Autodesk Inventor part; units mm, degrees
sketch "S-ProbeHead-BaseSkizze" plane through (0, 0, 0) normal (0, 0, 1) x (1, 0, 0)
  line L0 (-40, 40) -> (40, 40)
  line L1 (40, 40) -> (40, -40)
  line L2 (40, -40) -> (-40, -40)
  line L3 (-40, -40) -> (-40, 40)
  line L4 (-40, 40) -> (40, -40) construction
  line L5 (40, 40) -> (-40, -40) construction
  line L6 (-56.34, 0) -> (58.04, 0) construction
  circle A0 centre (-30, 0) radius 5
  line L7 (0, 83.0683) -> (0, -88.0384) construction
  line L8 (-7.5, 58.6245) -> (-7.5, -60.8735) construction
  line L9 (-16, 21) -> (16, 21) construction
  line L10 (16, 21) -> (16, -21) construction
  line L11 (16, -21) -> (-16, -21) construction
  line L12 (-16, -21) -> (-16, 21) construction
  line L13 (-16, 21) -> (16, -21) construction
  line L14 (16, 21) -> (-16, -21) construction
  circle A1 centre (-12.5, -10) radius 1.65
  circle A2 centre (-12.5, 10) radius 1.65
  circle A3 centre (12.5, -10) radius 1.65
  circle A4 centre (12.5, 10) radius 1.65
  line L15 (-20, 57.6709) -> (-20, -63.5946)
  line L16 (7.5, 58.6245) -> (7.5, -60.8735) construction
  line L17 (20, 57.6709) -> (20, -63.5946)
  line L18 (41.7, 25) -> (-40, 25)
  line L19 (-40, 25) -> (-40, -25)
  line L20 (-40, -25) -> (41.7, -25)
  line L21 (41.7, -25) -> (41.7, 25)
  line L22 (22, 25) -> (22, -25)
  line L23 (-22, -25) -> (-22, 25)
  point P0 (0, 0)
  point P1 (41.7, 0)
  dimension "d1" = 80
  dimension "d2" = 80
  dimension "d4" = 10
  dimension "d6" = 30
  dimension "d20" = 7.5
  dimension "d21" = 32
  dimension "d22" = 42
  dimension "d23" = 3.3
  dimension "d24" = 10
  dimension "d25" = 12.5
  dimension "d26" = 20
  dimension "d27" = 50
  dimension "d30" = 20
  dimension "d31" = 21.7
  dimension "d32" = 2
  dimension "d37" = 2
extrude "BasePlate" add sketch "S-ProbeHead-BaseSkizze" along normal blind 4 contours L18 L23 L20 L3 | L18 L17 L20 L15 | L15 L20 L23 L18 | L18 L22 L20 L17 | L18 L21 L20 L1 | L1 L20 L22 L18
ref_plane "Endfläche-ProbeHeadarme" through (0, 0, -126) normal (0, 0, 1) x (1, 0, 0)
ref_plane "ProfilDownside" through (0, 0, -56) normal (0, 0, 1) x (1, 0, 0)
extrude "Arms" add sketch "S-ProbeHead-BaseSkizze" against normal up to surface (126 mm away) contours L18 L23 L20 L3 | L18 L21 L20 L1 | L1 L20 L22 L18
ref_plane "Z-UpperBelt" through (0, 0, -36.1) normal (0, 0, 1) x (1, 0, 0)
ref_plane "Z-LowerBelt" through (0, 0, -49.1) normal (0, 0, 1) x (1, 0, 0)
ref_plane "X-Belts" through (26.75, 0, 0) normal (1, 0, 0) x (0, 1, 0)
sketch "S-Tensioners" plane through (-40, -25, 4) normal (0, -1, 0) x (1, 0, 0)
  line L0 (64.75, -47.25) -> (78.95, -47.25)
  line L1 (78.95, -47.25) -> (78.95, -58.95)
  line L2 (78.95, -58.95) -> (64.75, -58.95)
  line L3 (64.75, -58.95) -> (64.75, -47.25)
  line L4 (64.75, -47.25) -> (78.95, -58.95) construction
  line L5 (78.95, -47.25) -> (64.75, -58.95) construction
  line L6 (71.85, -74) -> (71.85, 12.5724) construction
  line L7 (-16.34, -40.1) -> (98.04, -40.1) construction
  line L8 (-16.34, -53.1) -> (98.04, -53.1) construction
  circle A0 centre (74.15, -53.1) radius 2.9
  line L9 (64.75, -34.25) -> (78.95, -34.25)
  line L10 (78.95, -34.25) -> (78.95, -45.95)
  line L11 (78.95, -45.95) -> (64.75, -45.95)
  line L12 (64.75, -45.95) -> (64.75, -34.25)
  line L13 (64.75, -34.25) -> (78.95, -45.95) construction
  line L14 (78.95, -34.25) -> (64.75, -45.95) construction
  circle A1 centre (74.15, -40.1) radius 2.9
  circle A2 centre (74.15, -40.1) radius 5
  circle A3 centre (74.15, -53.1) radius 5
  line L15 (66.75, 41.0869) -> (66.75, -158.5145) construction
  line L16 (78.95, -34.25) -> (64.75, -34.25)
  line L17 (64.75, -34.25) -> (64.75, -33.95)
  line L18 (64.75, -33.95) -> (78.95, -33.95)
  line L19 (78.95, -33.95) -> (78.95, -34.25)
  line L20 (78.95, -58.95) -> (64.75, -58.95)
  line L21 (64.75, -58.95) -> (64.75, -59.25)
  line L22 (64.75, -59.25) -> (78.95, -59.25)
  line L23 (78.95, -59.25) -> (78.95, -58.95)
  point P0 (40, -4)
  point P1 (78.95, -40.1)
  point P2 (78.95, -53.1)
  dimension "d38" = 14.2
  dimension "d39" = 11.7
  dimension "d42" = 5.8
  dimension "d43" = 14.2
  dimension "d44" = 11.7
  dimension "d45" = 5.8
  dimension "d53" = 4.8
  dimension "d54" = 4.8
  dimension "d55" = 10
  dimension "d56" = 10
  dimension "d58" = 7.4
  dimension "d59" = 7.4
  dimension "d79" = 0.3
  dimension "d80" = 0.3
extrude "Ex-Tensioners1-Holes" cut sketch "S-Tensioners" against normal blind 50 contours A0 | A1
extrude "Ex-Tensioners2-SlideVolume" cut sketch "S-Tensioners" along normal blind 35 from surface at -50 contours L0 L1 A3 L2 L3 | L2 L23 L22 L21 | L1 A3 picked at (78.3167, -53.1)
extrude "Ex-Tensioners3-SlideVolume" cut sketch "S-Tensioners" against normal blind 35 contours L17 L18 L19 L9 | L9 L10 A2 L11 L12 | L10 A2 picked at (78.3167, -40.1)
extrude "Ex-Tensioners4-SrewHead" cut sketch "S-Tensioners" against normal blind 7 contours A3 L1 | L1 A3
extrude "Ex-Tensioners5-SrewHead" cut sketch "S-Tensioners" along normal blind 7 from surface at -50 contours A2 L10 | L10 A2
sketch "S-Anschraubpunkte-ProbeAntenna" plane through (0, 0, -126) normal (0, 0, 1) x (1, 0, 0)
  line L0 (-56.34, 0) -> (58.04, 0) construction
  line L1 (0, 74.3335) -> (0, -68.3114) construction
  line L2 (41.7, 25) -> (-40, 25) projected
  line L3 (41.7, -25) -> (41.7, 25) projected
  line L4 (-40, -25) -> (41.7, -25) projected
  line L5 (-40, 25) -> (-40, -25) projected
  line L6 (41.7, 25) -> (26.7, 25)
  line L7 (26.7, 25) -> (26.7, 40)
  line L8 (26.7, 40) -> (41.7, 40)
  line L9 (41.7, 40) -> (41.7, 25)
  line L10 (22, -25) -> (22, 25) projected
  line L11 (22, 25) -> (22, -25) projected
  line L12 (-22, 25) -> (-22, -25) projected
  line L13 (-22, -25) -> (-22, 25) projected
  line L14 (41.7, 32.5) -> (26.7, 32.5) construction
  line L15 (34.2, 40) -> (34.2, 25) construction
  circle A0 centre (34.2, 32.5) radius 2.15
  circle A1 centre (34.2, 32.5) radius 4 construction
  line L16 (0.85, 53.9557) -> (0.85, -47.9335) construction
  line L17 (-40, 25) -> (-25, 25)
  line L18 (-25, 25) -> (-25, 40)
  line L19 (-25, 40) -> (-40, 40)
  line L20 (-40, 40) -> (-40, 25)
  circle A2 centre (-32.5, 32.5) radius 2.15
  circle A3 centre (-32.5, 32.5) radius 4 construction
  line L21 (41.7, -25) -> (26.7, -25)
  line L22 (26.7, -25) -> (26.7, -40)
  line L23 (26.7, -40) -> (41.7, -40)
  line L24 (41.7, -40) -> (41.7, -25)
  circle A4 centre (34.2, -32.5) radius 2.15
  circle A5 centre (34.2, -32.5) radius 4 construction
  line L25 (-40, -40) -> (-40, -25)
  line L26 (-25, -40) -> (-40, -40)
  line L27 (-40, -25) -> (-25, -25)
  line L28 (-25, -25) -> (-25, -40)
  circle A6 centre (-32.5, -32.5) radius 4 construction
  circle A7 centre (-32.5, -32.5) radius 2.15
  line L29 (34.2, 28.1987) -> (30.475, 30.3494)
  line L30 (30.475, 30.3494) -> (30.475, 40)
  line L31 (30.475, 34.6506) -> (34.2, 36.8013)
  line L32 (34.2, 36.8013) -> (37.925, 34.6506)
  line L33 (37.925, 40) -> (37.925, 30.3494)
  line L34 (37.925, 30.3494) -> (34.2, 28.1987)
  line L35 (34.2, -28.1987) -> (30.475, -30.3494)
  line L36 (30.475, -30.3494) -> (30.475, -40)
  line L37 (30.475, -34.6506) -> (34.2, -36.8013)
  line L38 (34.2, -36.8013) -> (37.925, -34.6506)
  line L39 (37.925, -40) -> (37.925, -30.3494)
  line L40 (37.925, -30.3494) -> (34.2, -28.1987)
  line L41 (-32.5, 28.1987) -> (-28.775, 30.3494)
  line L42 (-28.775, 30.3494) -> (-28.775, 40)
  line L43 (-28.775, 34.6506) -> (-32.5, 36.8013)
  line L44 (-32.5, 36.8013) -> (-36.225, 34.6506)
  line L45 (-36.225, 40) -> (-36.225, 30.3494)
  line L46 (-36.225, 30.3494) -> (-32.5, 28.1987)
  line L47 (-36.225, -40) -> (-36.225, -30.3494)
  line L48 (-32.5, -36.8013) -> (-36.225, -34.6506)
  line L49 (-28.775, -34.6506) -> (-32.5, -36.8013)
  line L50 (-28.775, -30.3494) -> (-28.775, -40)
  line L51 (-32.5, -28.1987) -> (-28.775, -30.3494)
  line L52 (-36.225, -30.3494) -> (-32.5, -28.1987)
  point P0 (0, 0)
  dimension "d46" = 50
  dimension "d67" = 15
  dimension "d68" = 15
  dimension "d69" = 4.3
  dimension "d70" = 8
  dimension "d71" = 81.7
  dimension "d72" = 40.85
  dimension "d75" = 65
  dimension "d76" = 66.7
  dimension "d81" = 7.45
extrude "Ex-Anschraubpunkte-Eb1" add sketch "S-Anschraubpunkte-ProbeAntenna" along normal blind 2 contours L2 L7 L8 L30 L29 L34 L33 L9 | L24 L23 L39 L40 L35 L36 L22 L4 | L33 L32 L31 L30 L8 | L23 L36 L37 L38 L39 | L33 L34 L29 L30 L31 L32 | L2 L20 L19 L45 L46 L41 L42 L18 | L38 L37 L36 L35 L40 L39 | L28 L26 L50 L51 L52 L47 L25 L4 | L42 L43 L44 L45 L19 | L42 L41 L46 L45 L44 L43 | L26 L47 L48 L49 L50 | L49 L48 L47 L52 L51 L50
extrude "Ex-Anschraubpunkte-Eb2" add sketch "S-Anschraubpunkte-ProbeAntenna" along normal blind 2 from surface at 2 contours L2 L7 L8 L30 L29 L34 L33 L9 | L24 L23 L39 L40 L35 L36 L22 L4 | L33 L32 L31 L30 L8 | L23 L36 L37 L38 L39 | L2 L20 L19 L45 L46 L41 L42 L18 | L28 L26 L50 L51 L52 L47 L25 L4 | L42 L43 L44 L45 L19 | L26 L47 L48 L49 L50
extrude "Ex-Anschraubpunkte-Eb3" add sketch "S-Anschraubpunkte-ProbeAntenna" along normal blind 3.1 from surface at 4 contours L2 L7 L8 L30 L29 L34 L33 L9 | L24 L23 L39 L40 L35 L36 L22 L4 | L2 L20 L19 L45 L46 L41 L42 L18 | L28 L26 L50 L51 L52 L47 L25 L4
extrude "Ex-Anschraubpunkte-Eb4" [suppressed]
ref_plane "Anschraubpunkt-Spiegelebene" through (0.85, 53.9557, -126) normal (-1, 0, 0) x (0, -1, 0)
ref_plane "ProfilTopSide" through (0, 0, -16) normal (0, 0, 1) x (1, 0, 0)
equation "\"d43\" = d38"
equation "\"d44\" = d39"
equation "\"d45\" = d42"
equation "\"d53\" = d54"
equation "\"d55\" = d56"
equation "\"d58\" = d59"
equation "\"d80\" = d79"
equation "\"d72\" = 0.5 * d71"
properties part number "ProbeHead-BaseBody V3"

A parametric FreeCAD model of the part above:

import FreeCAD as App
import Part
import Sketcher

V = App.Vector
Q = App.Units.Quantity

doc = App.newDocument("Part")
body = doc.addObject("PartDesign::Body", "Body")

# Sketch on XY plane
sketch1 = body.newObject("Sketcher::SketchObject", "Sketch")
sketch1.AttachmentSupport = (doc.getObject("XY_Plane"), [""])
sketch1.MapMode = "FlatFace"
sketch1.addGeometry(Part.LineSegment(V(-40, 25, 0), V(-40, -25, 0)), False)
sketch1.addGeometry(Part.LineSegment(V(-40, -25, 0), V(41.7, -25, 0)), False)
sketch1.addGeometry(Part.LineSegment(V(41.7, -25, 0), V(41.7, 25, 0)), False)
sketch1.addGeometry(Part.LineSegment(V(41.7, 25, 0), V(-40, 25, 0)), False)
sketch1.addGeometry(Part.Circle(V(-30, 0, 0), V(0, 0, 1), 5), False)
sketch1.addGeometry(Part.Circle(V(12.5, 10, 0), V(0, 0, 1), 1.6), False)
sketch1.addGeometry(Part.Circle(V(-12.5, -10, 0), V(0, 0, 1), 1.6), False)
sketch1.addGeometry(Part.Circle(V(12.5, -10, 0), V(0, 0, 1), 1.6), False)
sketch1.addGeometry(Part.Circle(V(-12.5, 10, 0), V(0, 0, 1), 1.6), False)
sketch1.addConstraint(Sketcher.Constraint("Coincident", 0, 2, 1, 1))
sketch1.addConstraint(Sketcher.Constraint("Coincident", 1, 2, 2, 1))
sketch1.addConstraint(Sketcher.Constraint("Coincident", 2, 2, 3, 1))
sketch1.addConstraint(Sketcher.Constraint("Coincident", 3, 2, 0, 1))
sketch1.addConstraint(Sketcher.Constraint("Vertical", 0))
sketch1.addConstraint(Sketcher.Constraint("Horizontal", 1))
sketch1.addConstraint(Sketcher.Constraint("Vertical", 2))
sketch1.addConstraint(Sketcher.Constraint("Horizontal", 3))
sketch1.addConstraint(Sketcher.Constraint("Equal", 5, 6))
sketch1.addConstraint(Sketcher.Constraint("Equal", 6, 7))
sketch1.addConstraint(Sketcher.Constraint("Equal", 7, 8))
sketch1.addConstraint(Sketcher.Constraint("Symmetric", 5, 3, 6, 3, -1, 1))
sketch1.addConstraint(Sketcher.Constraint("Symmetric", 7, 3, 8, 3, -1, 1))
sketch1.addConstraint(Sketcher.Constraint("Symmetric", 6, 3, 7, 3, -2))
sketch1.addConstraint(Sketcher.Constraint("PointOnObject", 4, 3, -1))
sketch1.addConstraint(Sketcher.Constraint("Diameter", 4, Q("10 mm")))
sketch1.addConstraint(Sketcher.Constraint("Diameter", 5, Q("3.3 mm")))
sketch1.addConstraint(Sketcher.Constraint("DistanceY", 0, 2, 0, 1, Q("50 mm")))
sketch1.addConstraint(Sketcher.Constraint("DistanceX", 4, 3, -1, 1, Q("30 mm")))
sketch1.addConstraint(Sketcher.Constraint("DistanceY", -1, 1, 5, 3, Q("10 mm")))
sketch1.addConstraint(Sketcher.Constraint("DistanceX", 0, 2, 4, 3, Q("10 mm")))
sketch1.addConstraint(Sketcher.Constraint("DistanceX", -1, 1, 5, 3, Q("12.5 mm")))
sketch1.addConstraint(Sketcher.Constraint("DistanceX", 1, 1, 1, 2, Q("81.7 mm")))
sketch1.addConstraint(Sketcher.Constraint("DistanceY", 0, 2, -1, 1, Q("25 mm")))
pad1 = body.newObject("PartDesign::Pad", "Pad")
pad1.Profile = sketch1
pad1.Length = 4

# Sketch on XY plane
sketch2 = body.newObject("Sketcher::SketchObject", "Sketch001")
sketch2.AttachmentSupport = (doc.getObject("XY_Plane"), [""])
sketch2.MapMode = "FlatFace"
sketch2.addGeometry(Part.LineSegment(V(-22, 25, 0), V(-40, 25, 0)), False)
sketch2.addGeometry(Part.LineSegment(V(-40, 25, 0), V(-40, -25, 0)), False)
sketch2.addGeometry(Part.LineSegment(V(-40, -25, 0), V(-22, -25, 0)), False)
sketch2.addGeometry(Part.LineSegment(V(-22, -25, 0), V(-22, 25, 0)), False)
sketch2.addGeometry(Part.Circle(V(-30, 0, 0), V(0, 0, 1), 5), False)
sketch2.addGeometry(Part.LineSegment(V(42, 25, 0), V(22, 25, 0)), False)
sketch2.addGeometry(Part.LineSegment(V(22, 25, 0), V(22, -25, 0)), False)
sketch2.addGeometry(Part.LineSegment(V(22, -25, 0), V(42, -25, 0)), False)
sketch2.addGeometry(Part.LineSegment(V(42, -25, 0), V(42, 25, 0)), False)
sketch2.addConstraint(Sketcher.Constraint("Coincident", 0, 2, 1, 1))
sketch2.addConstraint(Sketcher.Constraint("Coincident", 1, 2, 2, 1))
sketch2.addConstraint(Sketcher.Constraint("Coincident", 2, 2, 3, 1))
sketch2.addConstraint(Sketcher.Constraint("Coincident", 3, 2, 0, 1))
sketch2.addConstraint(Sketcher.Constraint("Coincident", 5, 2, 6, 1))
sketch2.addConstraint(Sketcher.Constraint("Coincident", 6, 2, 7, 1))
sketch2.addConstraint(Sketcher.Constraint("Coincident", 7, 2, 8, 1))
sketch2.addConstraint(Sketcher.Constraint("Coincident", 8, 2, 5, 1))
sketch2.addConstraint(Sketcher.Constraint("Horizontal", 0))
sketch2.addConstraint(Sketcher.Constraint("Vertical", 1))
sketch2.addConstraint(Sketcher.Constraint("Horizontal", 2))
sketch2.addConstraint(Sketcher.Constraint("Vertical", 3))
sketch2.addConstraint(Sketcher.Constraint("Horizontal", 5))
sketch2.addConstraint(Sketcher.Constraint("Vertical", 6))
sketch2.addConstraint(Sketcher.Constraint("Horizontal", 7))
sketch2.addConstraint(Sketcher.Constraint("Vertical", 8))
sketch2.addConstraint(Sketcher.Constraint("Symmetric", 2, 2, 5, 2, -1, 1))
sketch2.addConstraint(Sketcher.Constraint("PointOnObject", 4, 3, -1))
sketch2.addConstraint(Sketcher.Constraint("Horizontal", 3, 2, 5, 2))
sketch2.addConstraint(Sketcher.Constraint("Horizontal", 2, 2, 6, 2))
sketch2.addConstraint(Sketcher.Constraint("Diameter", 4, Q("10 mm")))
sketch2.addConstraint(Sketcher.Constraint("DistanceY", 1, 2, 1, 1, Q("50 mm")))
sketch2.addConstraint(Sketcher.Constraint("DistanceX", 4, 3, -1, 1, Q("30 mm")))
sketch2.addConstraint(Sketcher.Constraint("DistanceX", 0, 2, 4, 3, Q("10 mm")))
sketch2.addConstraint(Sketcher.Constraint("DistanceX", 0, 2, 0, 1, Q("18 mm")))
sketch2.addConstraint(Sketcher.Constraint("DistanceX", 5, 2, 5, 1, Q("19.7 mm")))
pad2 = body.newObject("PartDesign::Pad", "Pad001")
pad2.Profile = sketch2
pad2.Length = 126
pad2.Reversed = True

# Sketch on XZ plane
sketch3 = body.newObject("Sketcher::SketchObject", "Sketch002")
sketch3.AttachmentSupport = (doc.getObject("XZ_Plane"), [""])
sketch3.MapMode = "FlatFace"
sketch3.AttachmentOffset = App.Placement(V(0, 0, 25), App.Rotation())
sketch3.addGeometry(Part.Circle(V(34.1, -49.1, 0), V(0, 0, 1), 2.9), False)
sketch3.addGeometry(Part.Circle(V(34.1, -36.1, 0), V(0, 0, 1), 2.9), False)
sketch3.addConstraint(Sketcher.Constraint("Equal", 0, 1))
sketch3.addConstraint(Sketcher.Constraint("Vertical", 0, 3, 1, 3))
sketch3.addConstraint(Sketcher.Constraint("Diameter", 0, Q("5.8 mm")))
sketch3.addConstraint(Sketcher.Constraint("DistanceY", 0, 3, 1, 3, Q("13 mm")))
sketch3.addConstraint(Sketcher.Constraint("DistanceY", 0, 3, -1, 1, Q("49.1 mm")))
sketch3.addConstraint(Sketcher.Constraint("DistanceX", -1, 1, 0, 3, Q("34.15 mm")))
pocket1 = body.newObject("PartDesign::Pocket", "Pocket")
pocket1.Profile = sketch3
pocket1.Length = 50

# Sketch on XZ plane
sketch4 = body.newObject("Sketcher::SketchObject", "Sketch003")
sketch4.AttachmentSupport = (doc.getObject("XZ_Plane"), [""])
sketch4.MapMode = "FlatFace"
sketch4.AttachmentOffset = App.Placement(V(0, 0, -25), App.Rotation())
sketch4.addGeometry(Part.LineSegment(V(39, -43.2, 0), V(24.8, -43.2, 0)), False)
sketch4.addGeometry(Part.LineSegment(V(24.8, -43.2, 0), V(24.8, -55.2, 0)), False)
sketch4.addGeometry(Part.LineSegment(V(24.8, -55.2, 0), V(39, -55.2, 0)), False)
sketch4.addGeometry(Part.LineSegment(V(39, -55.2, 0), V(39, -43.2, 0)), False)
sketch4.addGeometry(Part.Circle(V(34.1, -49.1, 0), V(0, 0, 1), 2.9), False)
sketch4.addConstraint(Sketcher.Constraint("Coincident", 0, 2, 1, 1))
sketch4.addConstraint(Sketcher.Constraint("Coincident", 1, 2, 2, 1))
sketch4.addConstraint(Sketcher.Constraint("Coincident", 2, 2, 3, 1))
sketch4.addConstraint(Sketcher.Constraint("Coincident", 3, 2, 0, 1))
sketch4.addConstraint(Sketcher.Constraint("Horizontal", 0))
sketch4.addConstraint(Sketcher.Constraint("Vertical", 1))
sketch4.addConstraint(Sketcher.Constraint("Horizontal", 2))
sketch4.addConstraint(Sketcher.Constraint("Vertical", 3))
sketch4.addConstraint(Sketcher.Constraint("Diameter", 4, Q("5.8 mm")))
sketch4.addConstraint(Sketcher.Constraint("DistanceX", 0, 2, 0, 1, Q("14.2 mm")))
sketch4.addConstraint(Sketcher.Constraint("DistanceX", 4, 3, 2, 2, Q("4.8 mm")))
sketch4.addConstraint(Sketcher.Constraint("DistanceY", 1, 2, 1, 1, Q("12 mm")))
sketch4.addConstraint(Sketcher.Constraint("DistanceY", 4, 3, -1, 1, Q("49.1 mm")))
sketch4.addConstraint(Sketcher.Constraint("DistanceX", -1, 1, 4, 3, Q("34.15 mm")))
sketch4.addConstraint(Sketcher.Constraint("DistanceY", 0, 2, -1, 1, Q("43.25 mm")))
pocket2 = body.newObject("PartDesign::Pocket", "Pocket001")
pocket2.Profile = sketch4
pocket2.Length = 35
pocket2.Reversed = True

# Sketch on XZ plane
sketch5 = body.newObject("Sketcher::SketchObject", "Sketch004")
sketch5.AttachmentSupport = (doc.getObject("XZ_Plane"), [""])
sketch5.MapMode = "FlatFace"
sketch5.AttachmentOffset = App.Placement(V(0, 0, 25), App.Rotation())
sketch5.addGeometry(Part.LineSegment(V(24.8, -29.9, 0), V(24.8, -42, 0)), False)
sketch5.addGeometry(Part.LineSegment(V(24.8, -42, 0), V(39, -42, 0)), False)
sketch5.addGeometry(Part.LineSegment(V(39, -42, 0), V(39, -29.9, 0)), False)
sketch5.addGeometry(Part.LineSegment(V(39, -29.9, 0), V(24.8, -29.9, 0)), False)
sketch5.addGeometry(Part.Circle(V(34.1, -36.1, 0), V(0, 0, 1), 2.9), False)
sketch5.addConstraint(Sketcher.Constraint("Coincident", 0, 2, 1, 1))
sketch5.addConstraint(Sketcher.Constraint("Coincident", 1, 2, 2, 1))
sketch5.addConstraint(Sketcher.Constraint("Coincident", 2, 2, 3, 1))
sketch5.addConstraint(Sketcher.Constraint("Coincident", 3, 2, 0, 1))
sketch5.addConstraint(Sketcher.Constraint("Vertical", 0))
sketch5.addConstraint(Sketcher.Constraint("Horizontal", 1))
sketch5.addConstraint(Sketcher.Constraint("Vertical", 2))
sketch5.addConstraint(Sketcher.Constraint("Horizontal", 3))
sketch5.addConstraint(Sketcher.Constraint("Diameter", 4, Q("5.8 mm")))
sketch5.addConstraint(Sketcher.Constraint("DistanceX", 1, 1, 1, 2, Q("14.2 mm")))
sketch5.addConstraint(Sketcher.Constraint("DistanceX", 4, 3, 1, 2, Q("4.8 mm")))
sketch5.addConstraint(Sketcher.Constraint("DistanceY", 0, 2, 0, 1, Q("12 mm")))
sketch5.addConstraint(Sketcher.Constraint("DistanceY", 4, 3, -1, 1, Q("36.1 mm")))
sketch5.addConstraint(Sketcher.Constraint("DistanceX", -1, 1, 4, 3, Q("34.15 mm")))
sketch5.addConstraint(Sketcher.Constraint("DistanceY", 0, 2, -1, 1, Q("41.95 mm")))
pocket3 = body.newObject("PartDesign::Pocket", "Pocket002")
pocket3.Profile = sketch5
pocket3.Length = 35

# Sketch on XZ plane
sketch6 = body.newObject("Sketcher::SketchObject", "Sketch005")
sketch6.AttachmentSupport = (doc.getObject("XZ_Plane"), [""])
sketch6.MapMode = "FlatFace"
sketch6.AttachmentOffset = App.Placement(V(0, 0, 25), App.Rotation())
sketch6.addGeometry(Part.Circle(V(34.1, -49.1, 0), V(0, 0, 1), 5), False)
sketch6.addGeometry(Part.Circle(V(34.1, -49.1, 0), V(0, 0, 1), 2.9), False)
sketch6.addConstraint(Sketcher.Constraint("Coincident", 1, 3, 0, 3))
sketch6.addConstraint(Sketcher.Constraint("Diameter", 0, Q("10 mm")))
sketch6.addConstraint(Sketcher.Constraint("Diameter", 1, Q("5.8 mm")))
sketch6.addConstraint(Sketcher.Constraint("DistanceY", 0, 3, -1, 1, Q("49.1 mm")))
sketch6.addConstraint(Sketcher.Constraint("DistanceX", -1, 1, 0, 3, Q("34.15 mm")))
pocket4 = body.newObject("PartDesign::Pocket", "Pocket003")
pocket4.Profile = sketch6
pocket4.Length = 7

# Sketch on XZ plane
sketch7 = body.newObject("Sketcher::SketchObject", "Sketch006")
sketch7.AttachmentSupport = (doc.getObject("XZ_Plane"), [""])
sketch7.MapMode = "FlatFace"
sketch7.AttachmentOffset = App.Placement(V(0, 0, -25), App.Rotation())
sketch7.addGeometry(Part.Circle(V(34.1, -36.1, 0), V(0, 0, 1), 5), False)
sketch7.addGeometry(Part.Circle(V(34.1, -36.1, 0), V(0, 0, 1), 2.9), False)
sketch7.addConstraint(Sketcher.Constraint("Coincident", 1, 3, 0, 3))
sketch7.addConstraint(Sketcher.Constraint("Diameter", 0, Q("10 mm")))
sketch7.addConstraint(Sketcher.Constraint("Diameter", 1, Q("5.8 mm")))
sketch7.addConstraint(Sketcher.Constraint("DistanceY", 0, 3, -1, 1, Q("36.1 mm")))
sketch7.addConstraint(Sketcher.Constraint("DistanceX", -1, 1, 0, 3, Q("34.15 mm")))
pocket5 = body.newObject("PartDesign::Pocket", "Pocket004")
pocket5.Profile = sketch7
pocket5.Length = 7
pocket5.Reversed = True

# Sketch on XY plane
sketch8 = body.newObject("Sketcher::SketchObject", "Sketch007")
sketch8.AttachmentSupport = (doc.getObject("XY_Plane"), [""])
sketch8.MapMode = "FlatFace"
sketch8.AttachmentOffset = App.Placement(V(0, 0, -126), App.Rotation())
sketch8.addGeometry(Part.LineSegment(V(26.7, 25, 0), V(41.7, 25, 0)), False)
sketch8.addGeometry(Part.LineSegment(V(41.7, 25, 0), V(41.7, 40, 0)), False)
sketch8.addGeometry(Part.LineSegment(V(41.7, 40, 0), V(26.7, 40, 0)), False)
sketch8.addGeometry(Part.LineSegment(V(26.7, 40, 0), V(26.7, 25, 0)), False)
sketch8.addGeometry(Part.Circle(V(34.2, 32.5, 0), V(0, 0, 1), 2.1), False)
sketch8.addGeometry(Part.LineSegment(V(41.7, -40, 0), V(41.7, -25, 0)), False)
sketch8.addGeometry(Part.LineSegment(V(41.7, -25, 0), V(26.7, -25, 0)), False)
sketch8.addGeometry(Part.LineSegment(V(26.7, -25, 0), V(26.7, -40, 0)), False)
sketch8.addGeometry(Part.LineSegment(V(26.7, -40, 0), V(41.7, -40, 0)), False)
sketch8.addGeometry(Part.Circle(V(34.2, -32.5, 0), V(0, 0, 1), 2.1), False)
sketch8.addGeometry(Part.LineSegment(V(-40, 25, 0), V(-25, 25, 0)), False)
sketch8.addGeometry(Part.LineSegment(V(-25, 25, 0), V(-25, 40, 0)), False)
sketch8.addGeometry(Part.LineSegment(V(-25, 40, 0), V(-40, 40, 0)), False)
sketch8.addGeometry(Part.LineSegment(V(-40, 40, 0), V(-40, 25, 0)), False)
sketch8.addGeometry(Part.Circle(V(-32.5, 32.5, 0), V(0, 0, 1), 2.1), False)
sketch8.addGeometry(Part.LineSegment(V(-25, -40, 0), V(-25, -25, 0)), False)
sketch8.addGeometry(Part.LineSegment(V(-25, -25, 0), V(-40, -25, 0)), False)
sketch8.addGeometry(Part.LineSegment(V(-40, -25, 0), V(-40, -40, 0)), False)
sketch8.addGeometry(Part.LineSegment(V(-40, -40, 0), V(-25, -40, 0)), False)
sketch8.addGeometry(Part.Circle(V(-32.5, -32.5, 0), V(0, 0, 1), 2.1), False)
sketch8.addConstraint(Sketcher.Constraint("Coincident", 0, 2, 1, 1))
sketch8.addConstraint(Sketcher.Constraint("Coincident", 1, 2, 2, 1))
sketch8.addConstraint(Sketcher.Constraint("Coincident", 2, 2, 3, 1))
sketch8.addConstraint(Sketcher.Constraint("Coincident", 3, 2, 0, 1))
sketch8.addConstraint(Sketcher.Constraint("Coincident", 5, 2, 6, 1))
sketch8.addConstraint(Sketcher.Constraint("Coincident", 6, 2, 7, 1))
sketch8.addConstraint(Sketcher.Constraint("Coincident", 7, 2, 8, 1))
sketch8.addConstraint(Sketcher.Constraint("Coincident", 8, 2, 5, 1))
sketch8.addConstraint(Sketcher.Constraint("Coincident", 10, 2, 11, 1))
sketch8.addConstraint(Sketcher.Constraint("Coincident", 11, 2, 12, 1))
sketch8.addConstraint(Sketcher.Constraint("Coincident", 12, 2, 13, 1))
sketch8.addConstraint(Sketcher.Constraint("Coincident", 13, 2, 10, 1))
sketch8.addConstraint(Sketcher.Constraint("Coincident", 15, 2, 16, 1))
sketch8.addConstraint(Sketcher.Constraint("Coincident", 16, 2, 17, 1))
sketch8.addConstraint(Sketcher.Constraint("Coincident", 17, 2, 18, 1))
sketch8.addConstraint(Sketcher.Constraint("Coincident", 18, 2, 15, 1))
sketch8.addConstraint(Sketcher.Constraint("Horizontal", 0))
sketch8.addConstraint(Sketcher.Constraint("Vertical", 1))
sketch8.addConstraint(Sketcher.Constraint("Horizontal", 2))
sketch8.addConstraint(Sketcher.Constraint("Vertical", 3))
sketch8.addConstraint(Sketcher.Constraint("Vertical", 5))
sketch8.addConstraint(Sketcher.Constraint("Horizontal", 6))
sketch8.addConstraint(Sketcher.Constraint("Vertical", 7))
sketch8.addConstraint(Sketcher.Constraint("Horizontal", 8))
sketch8.addConstraint(Sketcher.Constraint("Horizontal", 10))
sketch8.addConstraint(Sketcher.Constraint("Vertical", 11))
sketch8.addConstraint(Sketcher.Constraint("Horizontal", 12))
sketch8.addConstraint(Sketcher.Constraint("Vertical", 13))
sketch8.addConstraint(Sketcher.Constraint("Vertical", 15))
sketch8.addConstraint(Sketcher.Constraint("Horizontal", 16))
sketch8.addConstraint(Sketcher.Constraint("Vertical", 17))
sketch8.addConstraint(Sketcher.Constraint("Horizontal", 18))
sketch8.addConstraint(Sketcher.Constraint("Equal", 4, 9))
sketch8.addConstraint(Sketcher.Constraint("Equal", 9, 14))
sketch8.addConstraint(Sketcher.Constraint("Equal", 14, 19))
sketch8.addConstraint(Sketcher.Constraint("Symmetric", 4, 3, 9, 3, -1))
sketch8.addConstraint(Sketcher.Constraint("Symmetric", 14, 3, 19, 3, -1))
sketch8.addConstraint(Sketcher.Constraint("Symmetric", 0, 2, 5, 2, -1))
sketch8.addConstraint(Sketcher.Constraint("Symmetric", 2, 2, 7, 2, -1))
sketch8.addConstraint(Sketcher.Constraint("Symmetric", 10, 2, 15, 2, -1))
sketch8.addConstraint(Sketcher.Constraint("Symmetric", 12, 2, 17, 2, -1))
sketch8.addConstraint(Sketcher.Constraint("Horizontal", 4, 3, 14, 3))
sketch8.addConstraint(Sketcher.Constraint("Horizontal", 3, 2, 10, 2))
sketch8.addConstraint(Sketcher.Constraint("Horizontal", 2, 2, 11, 2))
sketch8.addConstraint(Sketcher.Constraint("Equal", 8, 10))
sketch8.addConstraint(Sketcher.Constraint("Equal", 18, 1))
sketch8.addConstraint(Sketcher.Constraint("Diameter", 4, Q("4.3 mm")))
sketch8.addConstraint(Sketcher.Constraint("DistanceX", 0, 1, 0, 2, Q("15 mm")))
sketch8.addConstraint(Sketcher.Constraint("DistanceY", 9, 3, 4, 3, Q("65 mm")))
sketch8.addConstraint(Sketcher.Constraint("DistanceY", 5, 2, 0, 2, Q("50 mm")))
sketch8.addConstraint(Sketcher.Constraint("DistanceX", 14, 3, 4, 3, Q("66.7 mm")))
sketch8.addConstraint(Sketcher.Constraint("DistanceX", 12, 2, 2, 2, Q("66.7 mm")))
sketch8.addConstraint(Sketcher.Constraint("DistanceX", 10, 2, -1, 1, Q("25 mm")))
sketch8.addConstraint(Sketcher.Constraint("DistanceX", -1, 1, 4, 3, Q("34.2 mm")))
pad3 = body.newObject("PartDesign::Pad", "Pad002")
pad3.Profile = sketch8
pad3.Length = 2

# Sketch on XY plane
sketch9 = body.newObject("Sketcher::SketchObject", "Sketch008")
sketch9.AttachmentSupport = (doc.getObject("XY_Plane"), [""])
sketch9.MapMode = "FlatFace"
sketch9.AttachmentOffset = App.Placement(V(0, 0, -124), App.Rotation())
sketch9.addGeometry(Part.LineSegment(V(26.7, 25, 0), V(41.7, 25, 0)), False)
sketch9.addGeometry(Part.LineSegment(V(41.7, 25, 0), V(41.7, 40, 0)), False)
sketch9.addGeometry(Part.LineSegment(V(41.7, 40, 0), V(26.7, 40, 0)), False)
sketch9.addGeometry(Part.LineSegment(V(26.7, 40, 0), V(26.7, 25, 0)), False)
sketch9.addGeometry(Part.LineSegment(V(30.5, 30.3, 0), V(30.5, 34.7, 0)), False)
sketch9.addGeometry(Part.LineSegment(V(30.5, 34.7, 0), V(34.2, 36.8, 0)), False)
sketch9.addGeometry(Part.LineSegment(V(34.2, 36.8, 0), V(37.9, 34.7, 0)), False)
sketch9.addGeometry(Part.LineSegment(V(37.9, 34.7, 0), V(37.9, 30.3, 0)), False)
sketch9.addGeometry(Part.LineSegment(V(37.9, 30.3, 0), V(34.2, 28.2, 0)), False)
sketch9.addGeometry(Part.LineSegment(V(34.2, 28.2, 0), V(30.5, 30.3, 0)), False)
sketch9.addGeometry(Part.LineSegment(V(41.7, -40, 0), V(41.7, -25, 0)), False)
sketch9.addGeometry(Part.LineSegment(V(41.7, -25, 0), V(26.7, -25, 0)), False)
sketch9.addGeometry(Part.LineSegment(V(26.7, -25, 0), V(26.7, -40, 0)), False)
sketch9.addGeometry(Part.LineSegment(V(26.7, -40, 0), V(41.7, -40, 0)), False)
sketch9.addGeometry(Part.LineSegment(V(37.9, -30.3, 0), V(37.9, -34.7, 0)), False)
sketch9.addGeometry(Part.LineSegment(V(37.9, -34.7, 0), V(34.2, -36.8, 0)), False)
sketch9.addGeometry(Part.LineSegment(V(34.2, -36.8, 0), V(30.5, -34.7, 0)), False)
sketch9.addGeometry(Part.LineSegment(V(30.5, -34.7, 0), V(30.5, -30.3, 0)), False)
sketch9.addGeometry(Part.LineSegment(V(30.5, -30.3, 0), V(34.2, -28.2, 0)), False)
sketch9.addGeometry(Part.LineSegment(V(34.2, -28.2, 0), V(37.9, -30.3, 0)), False)
sketch9.addGeometry(Part.LineSegment(V(-40, 25, 0), V(-25, 25, 0)), False)
sketch9.addGeometry(Part.LineSegment(V(-25, 25, 0), V(-25, 40, 0)), False)
sketch9.addGeometry(Part.LineSegment(V(-25, 40, 0), V(-40, 40, 0)), False)
sketch9.addGeometry(Part.LineSegment(V(-40, 40, 0), V(-40, 25, 0)), False)
sketch9.addGeometry(Part.LineSegment(V(-36.2, 30.3, 0), V(-36.2, 34.7, 0)), False)
sketch9.addGeometry(Part.LineSegment(V(-36.2, 34.7, 0), V(-32.5, 36.8, 0)), False)
sketch9.addGeometry(Part.LineSegment(V(-32.5, 36.8, 0), V(-28.8, 34.7, 0)), False)
sketch9.addGeometry(Part.LineSegment(V(-28.8, 34.7, 0), V(-28.8, 30.3, 0)), False)
sketch9.addGeometry(Part.LineSegment(V(-28.8, 30.3, 0), V(-32.5, 28.2, 0)), False)
sketch9.addGeometry(Part.LineSegment(V(-32.5, 28.2, 0), V(-36.2, 30.3, 0)), False)
sketch9.addGeometry(Part.LineSegment(V(-25, -40, 0), V(-25, -25, 0)), False)
sketch9.addGeometry(Part.LineSegment(V(-25, -25, 0), V(-40, -25, 0)), False)
sketch9.addGeometry(Part.LineSegment(V(-40, -25, 0), V(-40, -40, 0)), False)
sketch9.addGeometry(Part.LineSegment(V(-40, -40, 0), V(-25, -40, 0)), False)
sketch9.addGeometry(Part.LineSegment(V(-28.8, -30.3, 0), V(-28.8, -34.7, 0)), False)
sketch9.addGeometry(Part.LineSegment(V(-28.8, -34.7, 0), V(-32.5, -36.8, 0)), False)
sketch9.addGeometry(Part.LineSegment(V(-32.5, -36.8, 0), V(-36.2, -34.7, 0)), False)
sketch9.addGeometry(Part.LineSegment(V(-36.2, -34.7, 0), V(-36.2, -30.3, 0)), False)
sketch9.addGeometry(Part.LineSegment(V(-36.2, -30.3, 0), V(-32.5, -28.2, 0)), False)
sketch9.addGeometry(Part.LineSegment(V(-32.5, -28.2, 0), V(-28.8, -30.3, 0)), False)
sketch9.addConstraint(Sketcher.Constraint("Coincident", 0, 2, 1, 1))
sketch9.addConstraint(Sketcher.Constraint("Coincident", 1, 2, 2, 1))
sketch9.addConstraint(Sketcher.Constraint("Coincident", 2, 2, 3, 1))
sketch9.addConstraint(Sketcher.Constraint("Coincident", 3, 2, 0, 1))
sketch9.addConstraint(Sketcher.Constraint("Coincident", 4, 2, 5, 1))
sketch9.addConstraint(Sketcher.Constraint("Coincident", 5, 2, 6, 1))
sketch9.addConstraint(Sketcher.Constraint("Coincident", 6, 2, 7, 1))
sketch9.addConstraint(Sketcher.Constraint("Coincident", 7, 2, 8, 1))
sketch9.addConstraint(Sketcher.Constraint("Coincident", 8, 2, 9, 1))
sketch9.addConstraint(Sketcher.Constraint("Coincident", 9, 2, 4, 1))
sketch9.addConstraint(Sketcher.Constraint("Coincident", 10, 2, 11, 1))
sketch9.addConstraint(Sketcher.Constraint("Coincident", 11, 2, 12, 1))
sketch9.addConstraint(Sketcher.Constraint("Coincident", 12, 2, 13, 1))
sketch9.addConstraint(Sketcher.Constraint("Coincident", 13, 2, 10, 1))
sketch9.addConstraint(Sketcher.Constraint("Coincident", 14, 2, 15, 1))
sketch9.addConstraint(Sketcher.Constraint("Coincident", 15, 2, 16, 1))
sketch9.addConstraint(Sketcher.Constraint("Coincident", 16, 2, 17, 1))
sketch9.addConstraint(Sketcher.Constraint("Coincident", 17, 2, 18, 1))
sketch9.addConstraint(Sketcher.Constraint("Coincident", 18, 2, 19, 1))
sketch9.addConstraint(Sketcher.Constraint("Coincident", 19, 2, 14, 1))
sketch9.addConstraint(Sketcher.Constraint("Coincident", 20, 2, 21, 1))
sketch9.addConstraint(Sketcher.Constraint("Coincident", 21, 2, 22, 1))
sketch9.addConstraint(Sketcher.Constraint("Coincident", 22, 2, 23, 1))
sketch9.addConstraint(Sketcher.Constraint("Coincident", 23, 2, 20, 1))
sketch9.addConstraint(Sketcher.Constraint("Coincident", 24, 2, 25, 1))
sketch9.addConstraint(Sketcher.Constraint("Coincident", 25, 2, 26, 1))
sketch9.addConstraint(Sketcher.Constraint("Coincident", 26, 2, 27, 1))
sketch9.addConstraint(Sketcher.Constraint("Coincident", 27, 2, 28, 1))
sketch9.addConstraint(Sketcher.Constraint("Coincident", 28, 2, 29, 1))
sketch9.addConstraint(Sketcher.Constraint("Coincident", 29, 2, 24, 1))
sketch9.addConstraint(Sketcher.Constraint("Coincident", 30, 2, 31, 1))
sketch9.addConstraint(Sketcher.Constraint("Coincident", 31, 2, 32, 1))
sketch9.addConstraint(Sketcher.Constraint("Coincident", 32, 2, 33, 1))
sketch9.addConstraint(Sketcher.Constraint("Coincident", 33, 2, 30, 1))
sketch9.addConstraint(Sketcher.Constraint("Coincident", 34, 2, 35, 1))
sketch9.addConstraint(Sketcher.Constraint("Coincident", 35, 2, 36, 1))
sketch9.addConstraint(Sketcher.Constraint("Coincident", 36, 2, 37, 1))
sketch9.addConstraint(Sketcher.Constraint("Coincident", 37, 2, 38, 1))
sketch9.addConstraint(Sketcher.Constraint("Coincident", 38, 2, 39, 1))
sketch9.addConstraint(Sketcher.Constraint("Coincident", 39, 2, 34, 1))
sketch9.addConstraint(Sketcher.Constraint("Horizontal", 0))
sketch9.addConstraint(Sketcher.Constraint("Vertical", 1))
sketch9.addConstraint(Sketcher.Constraint("Horizontal", 2))
sketch9.addConstraint(Sketcher.Constraint("Vertical", 3))
sketch9.addConstraint(Sketcher.Constraint("Vertical", 4))
sketch9.addConstraint(Sketcher.Constraint("Vertical", 7))
sketch9.addConstraint(Sketcher.Constraint("Vertical", 10))
sketch9.addConstraint(Sketcher.Constraint("Horizontal", 11))
sketch9.addConstraint(Sketcher.Constraint("Vertical", 12))
sketch9.addConstraint(Sketcher.Constraint("Horizontal", 13))
sketch9.addConstraint(Sketcher.Constraint("Vertical", 14))
sketch9.addConstraint(Sketcher.Constraint("Vertical", 17))
sketch9.addConstraint(Sketcher.Constraint("Horizontal", 20))
sketch9.addConstraint(Sketcher.Constraint("Vertical", 21))
sketch9.addConstraint(Sketcher.Constraint("Horizontal", 22))
sketch9.addConstraint(Sketcher.Constraint("Vertical", 23))
sketch9.addConstraint(Sketcher.Constraint("Vertical", 24))
sketch9.addConstraint(Sketcher.Constraint("Vertical", 27))
sketch9.addConstraint(Sketcher.Constraint("Vertical", 30))
sketch9.addConstraint(Sketcher.Constraint("Horizontal", 31))
sketch9.addConstraint(Sketcher.Constraint("Vertical", 32))
sketch9.addConstraint(Sketcher.Constraint("Horizontal", 33))
sketch9.addConstraint(Sketcher.Constraint("Vertical", 34))
sketch9.addConstraint(Sketcher.Constraint("Vertical", 37))
sketch9.addConstraint(Sketcher.Constraint("Symmetric", 0, 2, 10, 2, -1))
sketch9.addConstraint(Sketcher.Constraint("Symmetric", 2, 2, 12, 2, -1))
sketch9.addConstraint(Sketcher.Constraint("Symmetric", 6, 2, 14, 2, -1))
sketch9.addConstraint(Sketcher.Constraint("Symmetric", 5, 2, 15, 2, -1))
sketch9.addConstraint(Sketcher.Constraint("Symmetric", 4, 2, 16, 2, -1))
sketch9.addConstraint(Sketcher.Constraint("Symmetric", 8, 2, 18, 2, -1))
sketch9.addConstraint(Sketcher.Constraint("Symmetric", 20, 2, 30, 2, -1))
sketch9.addConstraint(Sketcher.Constraint("Symmetric", 22, 2, 32, 2, -1))
sketch9.addConstraint(Sketcher.Constraint("Symmetric", 26, 2, 34, 2, -1))
sketch9.addConstraint(Sketcher.Constraint("Symmetric", 25, 2, 35, 2, -1))
sketch9.addConstraint(Sketcher.Constraint("Symmetric", 24, 2, 36, 2, -1))
sketch9.addConstraint(Sketcher.Constraint("Symmetric", 28, 2, 38, 2, -1))
sketch9.addConstraint(Sketcher.Constraint("Parallel", 5, 8))
sketch9.addConstraint(Sketcher.Constraint("Parallel", 6, 9))
sketch9.addConstraint(Sketcher.Constraint("Parallel", 8, 15))
sketch9.addConstraint(Sketcher.Constraint("Parallel", 15, 18))
sketch9.addConstraint(Sketcher.Constraint("Parallel", 16, 19))
sketch9.addConstraint(Sketcher.Constraint("Parallel", 18, 25))
sketch9.addConstraint(Sketcher.Constraint("Parallel", 19, 26))
sketch9.addConstraint(Sketcher.Constraint("Parallel", 25, 28))
sketch9.addConstraint(Sketcher.Constraint("Parallel", 26, 29))
sketch9.addConstraint(Sketcher.Constraint("Parallel", 35, 38))
sketch9.addConstraint(Sketcher.Constraint("Parallel", 36, 39))
sketch9.addConstraint(Sketcher.Constraint("Horizontal", 4, 2, 6, 2))
sketch9.addConstraint(Sketcher.Constraint("Horizontal", 7, 2, 9, 2))
sketch9.addConstraint(Sketcher.Constraint("Horizontal", 3, 2, 20, 2))
sketch9.addConstraint(Sketcher.Constraint("Horizontal", 2, 2, 21, 2))
sketch9.addConstraint(Sketcher.Constraint("Horizontal", 6, 2, 24, 2))
sketch9.addConstraint(Sketcher.Constraint("Horizontal", 5, 2, 25, 2))
sketch9.addConstraint(Sketcher.Constraint("Horizontal", 24, 2, 26, 2))
sketch9.addConstraint(Sketcher.Constraint("Horizontal", 9, 2, 27, 2))
sketch9.addConstraint(Sketcher.Constraint("Horizontal", 8, 2, 28, 2))
sketch9.addConstraint(Sketcher.Constraint("Equal", 13, 20))
sketch9.addConstraint(Sketcher.Constraint("Equal", 33, 1))
sketch9.addConstraint(Sketcher.Constraint("DistanceX", 0, 1, 0, 2, Q("15 mm")))
sketch9.addConstraint(Sketcher.Constraint("DistanceY", 10, 2, 0, 2, Q("50 mm")))
sketch9.addConstraint(Sketcher.Constraint("DistanceX", 22, 2, 2, 2, Q("66.7 mm")))
sketch9.addConstraint(Sketcher.Constraint("Angle", 5, Q("30.0008 deg")))
sketch9.addConstraint(Sketcher.Constraint("DistanceX", 4, 2, 6, 2, Q("7.45 mm")))
sketch9.addConstraint(Sketcher.Constraint("DistanceX", 20, 2, -1, 1, Q("25 mm")))
sketch9.addConstraint(Sketcher.Constraint("DistanceX", -1, 1, 5, 2, Q("34.2 mm")))
sketch9.addConstraint(Sketcher.Constraint("DistanceX", 25, 2, -1, 1, Q("32.5 mm")))
sketch9.addConstraint(Sketcher.Constraint("DistanceY", 4, 1, 4, 2, Q("4.3012 mm")))
sketch9.addConstraint(Sketcher.Constraint("DistanceY", -1, 1, 4, 2, Q("34.6506 mm")))
pad4 = body.newObject("PartDesign::Pad", "Pad003")
pad4.Profile = sketch9
pad4.Length = 2

# Sketch on XY plane
sketch10 = body.newObject("Sketcher::SketchObject", "Sketch009")
sketch10.AttachmentSupport = (doc.getObject("XY_Plane"), [""])
sketch10.MapMode = "FlatFace"
sketch10.AttachmentOffset = App.Placement(V(0, 0, -122), App.Rotation())
sketch10.addGeometry(Part.LineSegment(V(26.7, 25, 0), V(41.7, 25, 0)), False)
sketch10.addGeometry(Part.LineSegment(V(41.7, 25, 0), V(41.7, 40, 0)), False)
sketch10.addGeometry(Part.LineSegment(V(41.7, 40, 0), V(37.9, 40, 0)), False)
sketch10.addGeometry(Part.LineSegment(V(37.9, 40, 0), V(37.9, 30.3, 0)), False)
sketch10.addGeometry(Part.LineSegment(V(37.9, 30.3, 0), V(34.2, 28.2, 0)), False)
sketch10.addGeometry(Part.LineSegment(V(34.2, 28.2, 0), V(30.5, 30.3, 0)), False)
sketch10.addGeometry(Part.LineSegment(V(30.5, 30.3, 0), V(30.5, 40, 0)), False)
sketch10.addGeometry(Part.LineSegment(V(30.5, 40, 0), V(26.7, 40, 0)), False)
sketch10.addGeometry(Part.LineSegment(V(26.7, 40, 0), V(26.7, 25, 0)), False)
sketch10.addGeometry(Part.LineSegment(V(41.7, -40, 0), V(41.7, -25, 0)), False)
sketch10.addGeometry(Part.LineSegment(V(41.7, -25, 0), V(26.7, -25, 0)), False)
sketch10.addGeometry(Part.LineSegment(V(26.7, -25, 0), V(26.7, -40, 0)), False)
sketch10.addGeometry(Part.LineSegment(V(26.7, -40, 0), V(30.5, -40, 0)), False)
sketch10.addGeometry(Part.LineSegment(V(30.5, -40, 0), V(30.5, -30.3, 0)), False)
sketch10.addGeometry(Part.LineSegment(V(30.5, -30.3, 0), V(34.2, -28.2, 0)), False)
sketch10.addGeometry(Part.LineSegment(V(34.2, -28.2, 0), V(37.9, -30.3, 0)), False)
sketch10.addGeometry(Part.LineSegment(V(37.9, -30.3, 0), V(37.9, -40, 0)), False)
sketch10.addGeometry(Part.LineSegment(V(37.9, -40, 0), V(41.7, -40, 0)), False)
sketch10.addGeometry(Part.LineSegment(V(-40, 25, 0), V(-25, 25, 0)), False)
sketch10.addGeometry(Part.LineSegment(V(-25, 25, 0), V(-25, 40, 0)), False)
sketch10.addGeometry(Part.LineSegment(V(-25, 40, 0), V(-28.8, 40, 0)), False)
sketch10.addGeometry(Part.LineSegment(V(-28.8, 40, 0), V(-28.8, 30.3, 0)), False)
sketch10.addGeometry(Part.LineSegment(V(-28.8, 30.3, 0), V(-32.5, 28.2, 0)), False)
sketch10.addGeometry(Part.LineSegment(V(-32.5, 28.2, 0), V(-36.2, 30.3, 0)), False)
sketch10.addGeometry(Part.LineSegment(V(-36.2, 30.3, 0), V(-36.2, 40, 0)), False)
sketch10.addGeometry(Part.LineSegment(V(-36.2, 40, 0), V(-40, 40, 0)), False)
sketch10.addGeometry(Part.LineSegment(V(-40, 40, 0), V(-40, 25, 0)), False)
sketch10.addGeometry(Part.LineSegment(V(-25, -40, 0), V(-25, -25, 0)), False)
sketch10.addGeometry(Part.LineSegment(V(-25, -25, 0), V(-40, -25, 0)), False)
sketch10.addGeometry(Part.LineSegment(V(-40, -25, 0), V(-40, -40, 0)), False)
sketch10.addGeometry(Part.LineSegment(V(-40, -40, 0), V(-36.2, -40, 0)), False)
sketch10.addGeometry(Part.LineSegment(V(-36.2, -40, 0), V(-36.2, -30.3, 0)), False)
sketch10.addGeometry(Part.LineSegment(V(-36.2, -30.3, 0), V(-32.5, -28.2, 0)), False)
sketch10.addGeometry(Part.LineSegment(V(-32.5, -28.2, 0), V(-28.8, -30.3, 0)), False)
sketch10.addGeometry(Part.LineSegment(V(-28.8, -30.3, 0), V(-28.8, -40, 0)), False)
sketch10.addGeometry(Part.LineSegment(V(-28.8, -40, 0), V(-25, -40, 0)), False)
sketch10.addConstraint(Sketcher.Constraint("Coincident", 0, 2, 1, 1))
sketch10.addConstraint(Sketcher.Constraint("Coincident", 1, 2, 2, 1))
sketch10.addConstraint(Sketcher.Constraint("Coincident", 2, 2, 3, 1))
sketch10.addConstraint(Sketcher.Constraint("Coincident", 3, 2, 4, 1))
sketch10.addConstraint(Sketcher.Constraint("Coincident", 4, 2, 5, 1))
sketch10.addConstraint(Sketcher.Constraint("Coincident", 5, 2, 6, 1))
sketch10.addConstraint(Sketcher.Constraint("Coincident", 6, 2, 7, 1))
sketch10.addConstraint(Sketcher.Constraint("Coincident", 7, 2, 8, 1))
sketch10.addConstraint(Sketcher.Constraint("Coincident", 8, 2, 0, 1))
sketch10.addConstraint(Sketcher.Constraint("Coincident", 9, 2, 10, 1))
sketch10.addConstraint(Sketcher.Constraint("Coincident", 10, 2, 11, 1))
sketch10.addConstraint(Sketcher.Constraint("Coincident", 11, 2, 12, 1))
sketch10.addConstraint(Sketcher.Constraint("Coincident", 12, 2, 13, 1))
sketch10.addConstraint(Sketcher.Constraint("Coincident", 13, 2, 14, 1))
sketch10.addConstraint(Sketcher.Constraint("Coincident", 14, 2, 15, 1))
sketch10.addConstraint(Sketcher.Constraint("Coincident", 15, 2, 16, 1))
sketch10.addConstraint(Sketcher.Constraint("Coincident", 16, 2, 17, 1))
sketch10.addConstraint(Sketcher.Constraint("Coincident", 17, 2, 9, 1))
sketch10.addConstraint(Sketcher.Constraint("Coincident", 18, 2, 19, 1))
sketch10.addConstraint(Sketcher.Constraint("Coincident", 19, 2, 20, 1))
sketch10.addConstraint(Sketcher.Constraint("Coincident", 20, 2, 21, 1))
sketch10.addConstraint(Sketcher.Constraint("Coincident", 21, 2, 22, 1))
sketch10.addConstraint(Sketcher.Constraint("Coincident", 22, 2, 23, 1))
sketch10.addConstraint(Sketcher.Constraint("Coincident", 23, 2, 24, 1))
sketch10.addConstraint(Sketcher.Constraint("Coincident", 24, 2, 25, 1))
sketch10.addConstraint(Sketcher.Constraint("Coincident", 25, 2, 26, 1))
sketch10.addConstraint(Sketcher.Constraint("Coincident", 26, 2, 18, 1))
sketch10.addConstraint(Sketcher.Constraint("Coincident", 27, 2, 28, 1))
sketch10.addConstraint(Sketcher.Constraint("Coincident", 28, 2, 29, 1))
sketch10.addConstraint(Sketcher.Constraint("Coincident", 29, 2, 30, 1))
sketch10.addConstraint(Sketcher.Constraint("Coincident", 30, 2, 31, 1))
sketch10.addConstraint(Sketcher.Constraint("Coincident", 31, 2, 32, 1))
sketch10.addConstraint(Sketcher.Constraint("Coincident", 32, 2, 33, 1))
sketch10.addConstraint(Sketcher.Constraint("Coincident", 33, 2, 34, 1))
sketch10.addConstraint(Sketcher.Constraint("Coincident", 34, 2, 35, 1))
sketch10.addConstraint(Sketcher.Constraint("Coincident", 35, 2, 27, 1))
sketch10.addConstraint(Sketcher.Constraint("Horizontal", 0))
sketch10.addConstraint(Sketcher.Constraint("Vertical", 1))
sketch10.addConstraint(Sketcher.Constraint("Horizontal", 2))
sketch10.addConstraint(Sketcher.Constraint("Vertical", 3))
sketch10.addConstraint(Sketcher.Constraint("Vertical", 6))
sketch10.addConstraint(Sketcher.Constraint("Horizontal", 7))
sketch10.addConstraint(Sketcher.Constraint("Vertical", 8))
sketch10.addConstraint(Sketcher.Constraint("Vertical", 9))
sketch10.addConstraint(Sketcher.Constraint("Horizontal", 10))
sketch10.addConstraint(Sketcher.Constraint("Vertical", 11))
sketch10.addConstraint(Sketcher.Constraint("Horizontal", 12))
sketch10.addConstraint(Sketcher.Constraint("Vertical", 13))
sketch10.addConstraint(Sketcher.Constraint("Vertical", 16))
sketch10.addConstraint(Sketcher.Constraint("Horizontal", 17))
sketch10.addConstraint(Sketcher.Constraint("Horizontal", 18))
sketch10.addConstraint(Sketcher.Constraint("Vertical", 19))
sketch10.addConstraint(Sketcher.Constraint("Horizontal", 20))
sketch10.addConstraint(Sketcher.Constraint("Vertical", 21))
sketch10.addConstraint(Sketcher.Constraint("Vertical", 24))
sketch10.addConstraint(Sketcher.Constraint("Horizontal", 25))
sketch10.addConstraint(Sketcher.Constraint("Vertical", 26))
sketch10.addConstraint(Sketcher.Constraint("Vertical", 27))
sketch10.addConstraint(Sketcher.Constraint("Horizontal", 28))
sketch10.addConstraint(Sketcher.Constraint("Vertical", 29))
sketch10.addConstraint(Sketcher.Constraint("Horizontal", 30))
sketch10.addConstraint(Sketcher.Constraint("Vertical", 31))
sketch10.addConstraint(Sketcher.Constraint("Vertical", 34))
sketch10.addConstraint(Sketcher.Constraint("Horizontal", 35))
sketch10.addConstraint(Sketcher.Constraint("Symmetric", 0, 2, 9, 2, -1))
sketch10.addConstraint(Sketcher.Constraint("Symmetric", 7, 2, 11, 2, -1))
sketch10.addConstraint(Sketcher.Constraint("Symmetric", 5, 2, 13, 2, -1))
sketch10.addConstraint(Sketcher.Constraint("Symmetric", 4, 2, 14, 2, -1))
sketch10.addConstraint(Sketcher.Constraint("Symmetric", 3, 2, 15, 2, -1))
sketch10.addConstraint(Sketcher.Constraint("Symmetric", 18, 2, 27, 2, -1))
sketch10.addConstraint(Sketcher.Constraint("Symmetric", 25, 2, 29, 2, -1))
sketch10.addConstraint(Sketcher.Constraint("Symmetric", 23, 2, 31, 2, -1))
sketch10.addConstraint(Sketcher.Constraint("Symmetric", 22, 2, 32, 2, -1))
sketch10.addConstraint(Sketcher.Constraint("Symmetric", 21, 2, 33, 2, -1))
sketch10.addConstraint(Sketcher.Constraint("Parallel", 4, 14))
sketch10.addConstraint(Sketcher.Constraint("Parallel", 14, 22))
sketch10.addConstraint(Sketcher.Constraint("Parallel", 15, 23))
sketch10.addConstraint(Sketcher.Constraint("Horizontal", 3, 2, 5, 2))
sketch10.addConstraint(Sketcher.Constraint("Horizontal", 2, 2, 6, 2))
sketch10.addConstraint(Sketcher.Constraint("Horizontal", 12, 2, 16, 2))
sketch10.addConstraint(Sketcher.Constraint("Horizontal", 8, 2, 18, 2))
sketch10.addConstraint(Sketcher.Constraint("Horizontal", 7, 2, 19, 2))
sketch10.addConstraint(Sketcher.Constraint("Horizontal", 5, 2, 21, 2))
sketch10.addConstraint(Sketcher.Constraint("Horizontal", 4, 2, 22, 2))
sketch10.addConstraint(Sketcher.Constraint("Horizontal", 21, 2, 23, 2))
sketch10.addConstraint(Sketcher.Constraint("Horizontal", 20, 2, 24, 2))
sketch10.addConstraint(Sketcher.Constraint("Horizontal", 30, 2, 34, 2))
sketch10.addConstraint(Sketcher.Constraint("Equal", 2, 7))
sketch10.addConstraint(Sketcher.Constraint("Equal", 10, 18))
sketch10.addConstraint(Sketcher.Constraint("Equal", 17, 20))
sketch10.addConstraint(Sketcher.Constraint("Equal", 28, 1))
sketch10.addConstraint(Sketcher.Constraint("DistanceX", 0, 1, 0, 2, Q("15 mm")))
sketch10.addConstraint(Sketcher.Constraint("DistanceY", 9, 2, 0, 2, Q("50 mm")))
sketch10.addConstraint(Sketcher.Constraint("DistanceX", 29, 2, 11, 2, Q("66.7 mm")))
sketch10.addConstraint(Sketcher.Constraint("Angle", 4, Q("-149.9992 deg")))
sketch10.addConstraint(Sketcher.Constraint("DistanceX", 5, 2, 3, 2, Q("7.45 mm")))
sketch10.addConstraint(Sketcher.Constraint("DistanceX", 18, 2, -1, 1, Q("25 mm")))
sketch10.addConstraint(Sketcher.Constraint("DistanceY", 3, 2, 3, 1, Q("9.6506 mm")))
pad5 = body.newObject("PartDesign::Pad", "Pad004")
pad5.Profile = sketch10
pad5.Length = 3.1

doc.recompute()
